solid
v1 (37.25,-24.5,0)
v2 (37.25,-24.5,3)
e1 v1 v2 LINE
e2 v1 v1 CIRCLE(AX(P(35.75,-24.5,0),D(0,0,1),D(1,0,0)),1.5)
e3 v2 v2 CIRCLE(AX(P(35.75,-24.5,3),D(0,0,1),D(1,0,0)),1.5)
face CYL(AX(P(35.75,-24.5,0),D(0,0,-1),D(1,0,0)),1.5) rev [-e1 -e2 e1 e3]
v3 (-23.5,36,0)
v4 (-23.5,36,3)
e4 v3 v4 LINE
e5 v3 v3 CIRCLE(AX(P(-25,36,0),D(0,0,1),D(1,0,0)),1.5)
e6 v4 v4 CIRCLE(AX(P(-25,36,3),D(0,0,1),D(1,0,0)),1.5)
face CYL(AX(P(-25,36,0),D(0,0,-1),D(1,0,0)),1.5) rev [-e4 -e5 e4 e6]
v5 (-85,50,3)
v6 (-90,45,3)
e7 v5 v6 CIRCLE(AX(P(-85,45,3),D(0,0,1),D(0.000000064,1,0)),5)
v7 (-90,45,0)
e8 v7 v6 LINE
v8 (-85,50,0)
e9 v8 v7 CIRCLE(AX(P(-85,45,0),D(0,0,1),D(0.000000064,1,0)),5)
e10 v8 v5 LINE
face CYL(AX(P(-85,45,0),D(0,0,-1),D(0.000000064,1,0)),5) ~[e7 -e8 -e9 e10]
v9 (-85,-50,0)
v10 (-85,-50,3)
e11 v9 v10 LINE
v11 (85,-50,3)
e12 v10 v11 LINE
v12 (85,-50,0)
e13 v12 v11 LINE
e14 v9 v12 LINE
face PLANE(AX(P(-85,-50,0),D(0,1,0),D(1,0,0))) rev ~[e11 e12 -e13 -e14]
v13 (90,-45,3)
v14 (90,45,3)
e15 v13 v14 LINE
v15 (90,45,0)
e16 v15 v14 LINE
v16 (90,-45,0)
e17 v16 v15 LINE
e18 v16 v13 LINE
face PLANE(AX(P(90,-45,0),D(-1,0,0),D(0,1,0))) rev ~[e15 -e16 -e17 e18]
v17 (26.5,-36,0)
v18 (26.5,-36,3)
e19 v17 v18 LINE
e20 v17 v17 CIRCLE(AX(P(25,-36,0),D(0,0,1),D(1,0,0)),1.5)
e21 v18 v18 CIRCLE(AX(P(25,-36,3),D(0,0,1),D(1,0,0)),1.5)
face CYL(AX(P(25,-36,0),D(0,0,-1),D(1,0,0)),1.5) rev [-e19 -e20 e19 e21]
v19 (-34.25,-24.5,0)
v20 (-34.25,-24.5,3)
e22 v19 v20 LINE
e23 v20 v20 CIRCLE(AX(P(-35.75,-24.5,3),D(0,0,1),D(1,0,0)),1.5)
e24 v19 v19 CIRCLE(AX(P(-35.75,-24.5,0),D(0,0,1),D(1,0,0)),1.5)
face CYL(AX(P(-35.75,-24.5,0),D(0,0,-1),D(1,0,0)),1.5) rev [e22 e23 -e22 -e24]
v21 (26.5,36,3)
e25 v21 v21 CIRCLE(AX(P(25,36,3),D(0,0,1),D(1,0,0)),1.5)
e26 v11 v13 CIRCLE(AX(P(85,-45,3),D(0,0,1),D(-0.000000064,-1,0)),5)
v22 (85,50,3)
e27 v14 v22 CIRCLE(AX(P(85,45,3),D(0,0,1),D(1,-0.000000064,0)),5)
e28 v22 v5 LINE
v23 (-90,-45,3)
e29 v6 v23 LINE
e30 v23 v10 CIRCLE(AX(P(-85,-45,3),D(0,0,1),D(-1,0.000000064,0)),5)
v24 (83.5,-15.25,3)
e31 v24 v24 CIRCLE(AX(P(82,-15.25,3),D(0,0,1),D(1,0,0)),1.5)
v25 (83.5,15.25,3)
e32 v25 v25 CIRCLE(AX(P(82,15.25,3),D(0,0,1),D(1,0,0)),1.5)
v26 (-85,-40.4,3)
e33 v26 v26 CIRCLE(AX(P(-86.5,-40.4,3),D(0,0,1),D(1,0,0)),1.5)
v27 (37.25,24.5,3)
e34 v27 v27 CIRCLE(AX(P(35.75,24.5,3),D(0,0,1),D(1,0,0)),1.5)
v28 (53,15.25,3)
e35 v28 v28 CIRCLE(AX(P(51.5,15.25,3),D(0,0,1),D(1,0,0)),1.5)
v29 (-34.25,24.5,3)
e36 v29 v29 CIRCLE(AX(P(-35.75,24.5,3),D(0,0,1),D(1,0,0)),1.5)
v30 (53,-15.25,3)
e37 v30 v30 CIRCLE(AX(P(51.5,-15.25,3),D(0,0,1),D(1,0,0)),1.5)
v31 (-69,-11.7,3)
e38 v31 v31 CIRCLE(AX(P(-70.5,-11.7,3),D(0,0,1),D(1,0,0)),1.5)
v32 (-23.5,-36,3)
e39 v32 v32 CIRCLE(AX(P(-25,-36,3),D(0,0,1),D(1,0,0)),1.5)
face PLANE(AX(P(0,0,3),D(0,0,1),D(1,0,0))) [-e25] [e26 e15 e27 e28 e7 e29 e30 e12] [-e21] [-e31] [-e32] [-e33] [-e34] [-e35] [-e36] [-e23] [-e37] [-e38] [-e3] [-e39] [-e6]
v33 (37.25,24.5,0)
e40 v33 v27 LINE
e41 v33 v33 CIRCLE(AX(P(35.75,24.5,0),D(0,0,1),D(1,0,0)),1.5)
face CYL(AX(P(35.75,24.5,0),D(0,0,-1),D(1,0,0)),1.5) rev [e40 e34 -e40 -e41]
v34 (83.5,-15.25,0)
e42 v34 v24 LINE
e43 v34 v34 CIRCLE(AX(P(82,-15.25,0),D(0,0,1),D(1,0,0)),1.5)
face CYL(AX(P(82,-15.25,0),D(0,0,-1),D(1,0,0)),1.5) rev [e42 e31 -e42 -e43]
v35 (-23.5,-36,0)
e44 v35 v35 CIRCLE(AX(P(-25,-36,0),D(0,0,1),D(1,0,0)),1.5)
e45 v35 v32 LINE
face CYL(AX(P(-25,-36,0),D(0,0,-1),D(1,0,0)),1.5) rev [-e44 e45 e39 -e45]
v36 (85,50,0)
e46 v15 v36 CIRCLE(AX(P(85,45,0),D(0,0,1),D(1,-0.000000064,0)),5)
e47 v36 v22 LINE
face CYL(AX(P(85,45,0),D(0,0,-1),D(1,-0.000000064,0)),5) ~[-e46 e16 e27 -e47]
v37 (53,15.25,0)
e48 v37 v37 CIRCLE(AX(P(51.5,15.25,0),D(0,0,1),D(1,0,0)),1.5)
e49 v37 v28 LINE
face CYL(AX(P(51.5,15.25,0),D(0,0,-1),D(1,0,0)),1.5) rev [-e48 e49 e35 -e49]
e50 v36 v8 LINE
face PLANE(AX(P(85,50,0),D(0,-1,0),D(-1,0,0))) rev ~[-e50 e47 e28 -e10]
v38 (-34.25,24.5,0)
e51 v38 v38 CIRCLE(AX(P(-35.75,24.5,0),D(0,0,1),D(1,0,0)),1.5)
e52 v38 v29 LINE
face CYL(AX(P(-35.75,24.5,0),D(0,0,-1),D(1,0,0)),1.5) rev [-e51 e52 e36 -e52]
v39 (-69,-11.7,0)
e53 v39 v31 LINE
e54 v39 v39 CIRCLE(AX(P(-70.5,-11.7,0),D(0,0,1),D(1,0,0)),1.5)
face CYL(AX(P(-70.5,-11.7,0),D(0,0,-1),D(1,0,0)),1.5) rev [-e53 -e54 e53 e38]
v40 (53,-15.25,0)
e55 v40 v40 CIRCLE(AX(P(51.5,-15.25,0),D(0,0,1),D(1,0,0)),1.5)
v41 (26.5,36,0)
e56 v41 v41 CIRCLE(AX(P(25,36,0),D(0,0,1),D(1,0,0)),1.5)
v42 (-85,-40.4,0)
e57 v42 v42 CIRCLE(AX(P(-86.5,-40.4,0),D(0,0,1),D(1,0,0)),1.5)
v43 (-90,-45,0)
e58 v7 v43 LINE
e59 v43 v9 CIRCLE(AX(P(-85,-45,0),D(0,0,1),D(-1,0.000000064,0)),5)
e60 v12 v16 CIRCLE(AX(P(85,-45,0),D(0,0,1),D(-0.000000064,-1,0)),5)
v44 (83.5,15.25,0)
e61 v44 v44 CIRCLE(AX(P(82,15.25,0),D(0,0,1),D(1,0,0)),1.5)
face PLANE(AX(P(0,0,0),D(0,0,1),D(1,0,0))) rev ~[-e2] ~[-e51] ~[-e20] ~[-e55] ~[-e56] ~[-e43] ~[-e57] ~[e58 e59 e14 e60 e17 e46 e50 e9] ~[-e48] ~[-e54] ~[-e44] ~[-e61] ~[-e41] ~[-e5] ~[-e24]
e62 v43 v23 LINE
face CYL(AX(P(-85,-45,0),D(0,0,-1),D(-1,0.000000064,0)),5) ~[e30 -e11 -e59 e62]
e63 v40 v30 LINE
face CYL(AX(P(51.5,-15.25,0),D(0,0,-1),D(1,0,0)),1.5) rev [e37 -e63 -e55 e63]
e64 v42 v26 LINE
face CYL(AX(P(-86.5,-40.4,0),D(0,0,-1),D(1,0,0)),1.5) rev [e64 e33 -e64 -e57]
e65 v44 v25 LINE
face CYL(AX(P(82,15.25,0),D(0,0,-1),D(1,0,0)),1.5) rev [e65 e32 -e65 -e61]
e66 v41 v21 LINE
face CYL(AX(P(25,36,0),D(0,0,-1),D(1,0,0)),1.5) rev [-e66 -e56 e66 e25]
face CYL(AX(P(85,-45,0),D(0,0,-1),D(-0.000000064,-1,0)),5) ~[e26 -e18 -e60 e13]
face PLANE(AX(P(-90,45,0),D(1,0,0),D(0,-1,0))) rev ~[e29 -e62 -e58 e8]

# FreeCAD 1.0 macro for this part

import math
import FreeCAD as App
import Part
import Sketcher
from FreeCAD import Vector
Q = App.Units.Quantity

doc = App.newDocument("Part")
body = doc.addObject("PartDesign::Body", "Body")

# Sketch on XY plane
sketch1 = body.newObject("Sketcher::SketchObject", "Sketch")
sketch1.AttachmentSupport = (doc.getObject("XY_Plane"), [""])
sketch1.MapMode = "FlatFace"
sketch1.addGeometry([
    Part.LineSegment(Vector(-85, -50, 0), Vector(85, -50, 0)),  # 0
    Part.ArcOfCircle(Part.Circle(Vector(85, -45, 0), Vector(0, 0, 1), 5), math.radians(-90), math.radians(0)),  # 1
    Part.LineSegment(Vector(90, -45, 0), Vector(90, 45, 0)),  # 2
    Part.ArcOfCircle(Part.Circle(Vector(85, 45, 0), Vector(0, 0, 1), 5), math.radians(0), math.radians(90)),  # 3
    Part.LineSegment(Vector(85, 50, 0), Vector(-85, 50, 0)),  # 4
    Part.ArcOfCircle(Part.Circle(Vector(-85, 45, 0), Vector(0, 0, 1), 5), math.radians(90), math.radians(180)),  # 5
    Part.LineSegment(Vector(-90, 45, 0), Vector(-90, -45, 0)),  # 6
    Part.ArcOfCircle(Part.Circle(Vector(-85, -45, 0), Vector(0, 0, 1), 5), math.radians(180), math.radians(270)),  # 7
    Part.Circle(Vector(-86.5, -40.4, 0), Vector(0, 0, 1), 1.5),  # 8
    Part.Circle(Vector(-25, -36, 0), Vector(0, 0, 1), 1.5),  # 9
    Part.Circle(Vector(-35.8, -24.5, 0), Vector(0, 0, 1), 1.5),  # 10
    Part.Circle(Vector(-70.5, -11.7, 0), Vector(0, 0, 1), 1.5),  # 11
    Part.Circle(Vector(25, -36, 0), Vector(0, 0, 1), 1.5),  # 12
    Part.Circle(Vector(35.8, -24.5, 0), Vector(0, 0, 1), 1.5),  # 13
    Part.Circle(Vector(51.5, -15.2, 0), Vector(0, 0, 1), 1.5),  # 14
    Part.Circle(Vector(82, -15.2, 0), Vector(0, 0, 1), 1.5),  # 15
    Part.Circle(Vector(-35.8, 24.5, 0), Vector(0, 0, 1), 1.5),  # 16
    Part.Circle(Vector(-25, 36, 0), Vector(0, 0, 1), 1.5),  # 17
    Part.Circle(Vector(51.5, 15.2, 0), Vector(0, 0, 1), 1.5),  # 18
    Part.Circle(Vector(82, 15.2, 0), Vector(0, 0, 1), 1.5),  # 19
    Part.Circle(Vector(35.8, 24.5, 0), Vector(0, 0, 1), 1.5),  # 20
    Part.Circle(Vector(25, 36, 0), Vector(0, 0, 1), 1.5),  # 21
], False)
sketch1.addConstraint([
    Sketcher.Constraint("Tangent", 0, 2, 1, 1),
    Sketcher.Constraint("Tangent", 1, 2, 2, 1),
    Sketcher.Constraint("Tangent", 2, 2, 3, 1),
    Sketcher.Constraint("Tangent", 3, 2, 4, 1),
    Sketcher.Constraint("Tangent", 4, 2, 5, 1),
    Sketcher.Constraint("Tangent", 5, 2, 6, 1),
    Sketcher.Constraint("Tangent", 6, 2, 7, 1),
    Sketcher.Constraint("Tangent", 7, 2, 0, 1),
    Sketcher.Constraint("Horizontal", 0),
    Sketcher.Constraint("Vertical", 2),
    Sketcher.Constraint("Horizontal", 4),
    Sketcher.Constraint("Vertical", 6),
    Sketcher.Constraint("Equal", 1, 3),
    Sketcher.Constraint("Equal", 3, 5),
    Sketcher.Constraint("Equal", 5, 7),
    Sketcher.Constraint("Equal", 8, 9),
    Sketcher.Constraint("Equal", 9, 10),
    Sketcher.Constraint("Equal", 10, 11),
    Sketcher.Constraint("Equal", 11, 12),
    Sketcher.Constraint("Equal", 12, 13),
    Sketcher.Constraint("Equal", 13, 14),
    Sketcher.Constraint("Equal", 14, 15),
    Sketcher.Constraint("Equal", 15, 16),
    Sketcher.Constraint("Equal", 16, 17),
    Sketcher.Constraint("Equal", 17, 18),
    Sketcher.Constraint("Equal", 18, 19),
    Sketcher.Constraint("Equal", 19, 20),
    Sketcher.Constraint("Equal", 20, 21),
    Sketcher.Constraint("Symmetric", 1, 3, 5, 3, -1, 1),
    Sketcher.Constraint("Symmetric", 13, 3, 16, 3, -1, 1),
    Sketcher.Constraint("Symmetric", 12, 3, 17, 3, -1, 1),
    Sketcher.Constraint("Symmetric", 10, 3, 20, 3, -1, 1),
    Sketcher.Constraint("Symmetric", 9, 3, 21, 3, -1, 1),
    Sketcher.Constraint("Symmetric", 9, 3, 12, 3, -2),
    Sketcher.Constraint("Symmetric", 10, 3, 13, 3, -2),
    Sketcher.Constraint("Symmetric", 14, 3, 18, 3, -1),
    Sketcher.Constraint("Symmetric", 15, 3, 19, 3, -1),
    Sketcher.Constraint("Horizontal", 14, 3, 15, 3),
    Sketcher.Constraint("Diameter", 8, Q("3 mm")),
    Sketcher.Constraint("Radius", 1, Q("5 mm")),
    Sketcher.Constraint("DistanceX", 0, 1, 0, 2, Q("170 mm")),
    Sketcher.Constraint("DistanceY", 2, 1, 2, 2, Q("90 mm")),
    Sketcher.Constraint("DistanceX", 9, 3, -1, 1, Q("25 mm")),
    Sketcher.Constraint("DistanceY", 9, 3, -1, 1, Q("36 mm")),
    Sketcher.Constraint("DistanceX", -1, 1, 15, 3, Q("82 mm")),
    Sketcher.Constraint("DistanceX", 8, 3, 11, 3, Q("16 mm")),
    Sketcher.Constraint("DistanceY", 10, 3, 16, 3, Q("49 mm")),
    Sketcher.Constraint("DistanceX", 8, 3, -1, 1, Q("86.5 mm")),
    Sketcher.Constraint("DistanceY", 8, 3, -1, 1, Q("40.4 mm")),
    Sketcher.Constraint("DistanceY", 11, 3, -1, 1, Q("11.7 mm")),
    Sketcher.Constraint("DistanceX", -1, 1, 14, 3, Q("51.5 mm")),
    Sketcher.Constraint("DistanceX", 10, 3, 13, 3, Q("71.5 mm")),
    Sketcher.Constraint("DistanceY", 14, 3, 18, 3, Q("30.5 mm")),
])
pad1 = body.newObject("PartDesign::Pad", "Pad")
pad1.Profile = sketch1
pad1.Length = 3

doc.recompute()
